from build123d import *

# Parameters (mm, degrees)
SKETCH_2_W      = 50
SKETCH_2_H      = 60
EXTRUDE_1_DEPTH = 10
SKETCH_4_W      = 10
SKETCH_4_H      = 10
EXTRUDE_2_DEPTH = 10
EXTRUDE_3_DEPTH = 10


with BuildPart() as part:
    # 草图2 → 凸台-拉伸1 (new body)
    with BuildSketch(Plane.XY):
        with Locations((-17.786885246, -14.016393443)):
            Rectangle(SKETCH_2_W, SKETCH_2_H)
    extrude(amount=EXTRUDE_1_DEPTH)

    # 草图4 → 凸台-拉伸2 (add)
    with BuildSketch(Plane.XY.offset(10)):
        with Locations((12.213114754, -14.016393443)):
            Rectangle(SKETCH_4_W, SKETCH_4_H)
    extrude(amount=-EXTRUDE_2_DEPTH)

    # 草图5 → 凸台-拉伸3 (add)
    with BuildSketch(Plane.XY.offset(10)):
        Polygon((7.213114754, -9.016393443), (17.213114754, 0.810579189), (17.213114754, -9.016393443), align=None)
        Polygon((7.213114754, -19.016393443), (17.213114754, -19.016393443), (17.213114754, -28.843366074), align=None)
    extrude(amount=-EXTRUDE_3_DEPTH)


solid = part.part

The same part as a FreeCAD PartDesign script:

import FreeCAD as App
import Part
import Sketcher

V = App.Vector
Q = App.Units.Quantity

doc = App.newDocument("Part")
body = doc.addObject("PartDesign::Body", "Body")

# Sketch on XY plane
sketch1 = body.newObject("Sketcher::SketchObject", "Sketch")
sketch1.AttachmentSupport = (doc.getObject("XY_Plane"), [""])
sketch1.MapMode = "FlatFace"
sketch1.addGeometry([
    Part.LineSegment(V(-43, 16, 0), V(-43, -44, 0)),
    Part.LineSegment(V(-43, -44, 0), V(7, -44, 0)),
    Part.LineSegment(V(7, -44, 0), V(7, 16, 0)),
    Part.LineSegment(V(7, 16, 0), V(-43, 16, 0)),
], False)
sketch1.addConstraint([
    Sketcher.Constraint("Coincident", 0, 2, 1, 1),
    Sketcher.Constraint("Coincident", 1, 2, 2, 1),
    Sketcher.Constraint("Coincident", 2, 2, 3, 1),
    Sketcher.Constraint("Coincident", 3, 2, 0, 1),
    Sketcher.Constraint("Vertical", 0),
    Sketcher.Constraint("Horizontal", 1),
    Sketcher.Constraint("Vertical", 2),
    Sketcher.Constraint("Horizontal", 3),
    Sketcher.Constraint("DistanceX", 1, 1, 1, 2, Q("50 mm")),
    Sketcher.Constraint("DistanceY", 0, 2, 0, 1, Q("60 mm")),
    Sketcher.Constraint("DistanceX", 0, 2, -1, 1, Q("42.786885 mm")),
    Sketcher.Constraint("DistanceY", 0, 2, -1, 1, Q("44.016393 mm")),
])
pad1 = body.newObject("PartDesign::Pad", "Pad")
pad1.Profile = sketch1
pad1.Length = 10

# Sketch on XY plane
sketch2 = body.newObject("Sketcher::SketchObject", "Sketch001")
sketch2.AttachmentSupport = (doc.getObject("XY_Plane"), [""])
sketch2.MapMode = "FlatFace"
sketch2.AttachmentOffset = App.Placement(V(0, 0, 10), App.Rotation())
sketch2.addGeometry([
    Part.LineSegment(V(7, -9, 0), V(7, -19, 0)),
    Part.LineSegment(V(7, -19, 0), V(17, -19, 0)),
    Part.LineSegment(V(17, -19, 0), V(17, -9, 0)),
    Part.LineSegment(V(17, -9, 0), V(7, -9, 0)),
], False)
sketch2.addConstraint([
    Sketcher.Constraint("Coincident", 0, 2, 1, 1),
    Sketcher.Constraint("Coincident", 1, 2, 2, 1),
    Sketcher.Constraint("Coincident", 2, 2, 3, 1),
    Sketcher.Constraint("Coincident", 3, 2, 0, 1),
    Sketcher.Constraint("Vertical", 0),
    Sketcher.Constraint("Horizontal", 1),
    Sketcher.Constraint("Vertical", 2),
    Sketcher.Constraint("Horizontal", 3),
    Sketcher.Constraint("Equal", 3, 0),
    Sketcher.Constraint("DistanceX", 1, 1, 1, 2, Q("10 mm")),
    Sketcher.Constraint("DistanceX", -1, 1, 0, 2, Q("7.213115 mm")),
    Sketcher.Constraint("DistanceY", 0, 2, -1, 1, Q("19.016393 mm")),
])
pad2 = body.newObject("PartDesign::Pad", "Pad001")
pad2.Profile = sketch2
pad2.Length = 10
pad2.Reversed = True

# Sketch on XY plane
sketch3 = body.newObject("Sketcher::SketchObject", "Sketch002")
sketch3.AttachmentSupport = (doc.getObject("XY_Plane"), [""])
sketch3.MapMode = "FlatFace"
sketch3.AttachmentOffset = App.Placement(V(0, 0, 10), App.Rotation())
sketch3.addGeometry([
    Part.LineSegment(V(17, 1, 0), V(7, -9, 0)),  # 0
    Part.LineSegment(V(7, -9, 0), V(17, -9, 0)),  # 1
    Part.LineSegment(V(17, -9, 0), V(17, 1, 0)),  # 2
    Part.LineSegment(V(17, -19, 0), V(7, -19, 0)),  # 3
    Part.LineSegment(V(7, -19, 0), V(17, -29, 0)),  # 4
    Part.LineSegment(V(17, -29, 0), V(17, -19, 0)),  # 5
], False)
sketch3.addConstraint([
    Sketcher.Constraint("Coincident", 0, 2, 1, 1),
    Sketcher.Constraint("Coincident", 1, 2, 2, 1),
    Sketcher.Constraint("Coincident", 2, 2, 0, 1),
    Sketcher.Constraint("Coincident", 3, 2, 4, 1),
    Sketcher.Constraint("Coincident", 4, 2, 5, 1),
    Sketcher.Constraint("Coincident", 5, 2, 3, 1),
    Sketcher.Constraint("Horizontal", 1),
    Sketcher.Constraint("Vertical", 2),
    Sketcher.Constraint("Horizontal", 3),
    Sketcher.Constraint("Vertical", 5),
    Sketcher.Constraint("Vertical", 0, 2, 3, 2),
    Sketcher.Constraint("Vertical", 2, 2, 4, 2),
    Sketcher.Constraint("Equal", 2, 5),
    Sketcher.Constraint("DistanceX", 1, 1, 1, 2, Q("10 mm")),
    Sketcher.Constraint("Angle", 0, Q("-135.5 deg")),
    Sketcher.Constraint("DistanceY", 3, 2, 0, 2, Q("10 mm")),
    Sketcher.Constraint("DistanceY", -1, 1, 2, 2, Q("0.810579 mm")),
    Sketcher.Constraint("DistanceX", -1, 1, 0, 2, Q("7.213115 mm")),
])
pad3 = body.newObject("PartDesign::Pad", "Pad002")
pad3.Profile = sketch3
pad3.Length = 10
pad3.Reversed = True

doc.recompute()
